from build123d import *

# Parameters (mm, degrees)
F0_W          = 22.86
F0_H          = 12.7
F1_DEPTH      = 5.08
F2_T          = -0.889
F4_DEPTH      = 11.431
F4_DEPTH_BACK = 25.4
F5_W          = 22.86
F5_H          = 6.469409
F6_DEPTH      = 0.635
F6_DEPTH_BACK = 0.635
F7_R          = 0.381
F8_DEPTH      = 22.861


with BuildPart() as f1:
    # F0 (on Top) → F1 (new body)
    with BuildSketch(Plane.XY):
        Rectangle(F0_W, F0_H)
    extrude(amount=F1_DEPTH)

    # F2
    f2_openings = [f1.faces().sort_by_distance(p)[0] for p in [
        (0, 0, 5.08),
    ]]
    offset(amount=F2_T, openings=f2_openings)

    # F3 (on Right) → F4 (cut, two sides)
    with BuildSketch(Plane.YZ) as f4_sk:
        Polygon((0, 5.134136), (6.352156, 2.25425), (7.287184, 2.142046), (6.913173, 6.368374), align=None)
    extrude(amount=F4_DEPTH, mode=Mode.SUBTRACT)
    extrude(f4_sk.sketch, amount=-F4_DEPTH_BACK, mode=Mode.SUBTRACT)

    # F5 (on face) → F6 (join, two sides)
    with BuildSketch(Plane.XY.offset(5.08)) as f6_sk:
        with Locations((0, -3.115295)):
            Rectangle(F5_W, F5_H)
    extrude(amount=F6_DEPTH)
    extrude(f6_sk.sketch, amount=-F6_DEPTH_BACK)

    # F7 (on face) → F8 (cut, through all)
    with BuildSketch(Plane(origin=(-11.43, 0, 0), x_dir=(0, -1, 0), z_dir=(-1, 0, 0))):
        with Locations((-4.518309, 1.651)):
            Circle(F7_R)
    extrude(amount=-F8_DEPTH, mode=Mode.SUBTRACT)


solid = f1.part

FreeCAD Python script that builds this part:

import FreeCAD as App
import Part
import Sketcher
Q = App.Units.Quantity


def faces_at(feature, points):
    """Names of the faces that lie closest to the given points."""
    faces = feature.Shape.Faces
    near = lambda p: min(range(len(faces)), key=lambda i: faces[i].distToShape(Part.Vertex(*p))[0])
    return sorted({f"Face{near(p) + 1}" for p in points})

doc = App.newDocument("Part")
body = doc.addObject("PartDesign::Body", "Body")

sketch1 = doc.addObject("Sketcher::SketchObject", "Sketch")
body.addObject(sketch1)
sketch1.AttachmentSupport = (doc.XY_Plane, [""])
sketch1.MapMode = "FlatFace"
sketch1.addGeometry([
    Part.LineSegment(App.Vector(-11, 6, 0), App.Vector(-11, -6, 0)),
    Part.LineSegment(App.Vector(-11, -6, 0), App.Vector(11, -6, 0)),
    Part.LineSegment(App.Vector(11, -6, 0), App.Vector(11, 6, 0)),
    Part.LineSegment(App.Vector(11, 6, 0), App.Vector(-11, 6, 0)),
], False)
sketch1.addConstraint([
    Sketcher.Constraint("Coincident", 0, 2, 1, 1),
    Sketcher.Constraint("Coincident", 1, 2, 2, 1),
    Sketcher.Constraint("Coincident", 2, 2, 3, 1),
    Sketcher.Constraint("Coincident", 3, 2, 0, 1),
    Sketcher.Constraint("Vertical", 0),
    Sketcher.Constraint("Horizontal", 1),
    Sketcher.Constraint("Vertical", 2),
    Sketcher.Constraint("Horizontal", 3),
    Sketcher.Constraint("Symmetric", 0, 2, 2, 2, -1, 1),
    Sketcher.Constraint("DistanceX", 1, 1, 1, 2, Q("0.9 in")),
    Sketcher.Constraint("DistanceY", 0, 2, 0, 1, Q("0.5 in")),
])
pad1 = doc.addObject("PartDesign::Pad", "Pad")
body.addObject(pad1)
pad1.Profile = sketch1
pad1.Length = Q("0.2 in")
doc.recompute()

thickness = doc.addObject("PartDesign::Thickness", "Thickness")
body.addObject(thickness)
thickness.Base = (pad1, faces_at(pad1, [(0, 0, 5.08)]))
thickness.Value = Q("0.035 in")
thickness.Reversed = True
thickness.Join = "Arc"

sketch2 = doc.addObject("Sketcher::SketchObject", "Sketch001")
body.addObject(sketch2)
sketch2.AttachmentSupport = (doc.YZ_Plane, [""])
sketch2.MapMode = "FlatFace"
sketch2.addGeometry([
    Part.LineSegment(App.Vector(0, 5.1, 0), App.Vector(6.4, 2.3, 0)),
    Part.LineSegment(App.Vector(6.4, 2.3, 0), App.Vector(7.3, 2.1, 0)),
    Part.LineSegment(App.Vector(7.3, 2.1, 0), App.Vector(6.9, 6.4, 0)),
    Part.LineSegment(App.Vector(6.9, 6.4, 0), App.Vector(0, 5.1, 0)),
], False)
sketch2.addConstraint([
    Sketcher.Constraint("Coincident", 0, 2, 1, 1),
    Sketcher.Constraint("Coincident", 1, 2, 2, 1),
    Sketcher.Constraint("Coincident", 2, 2, 3, 1),
    Sketcher.Constraint("Coincident", 3, 2, 0, 1),
    Sketcher.Constraint("PointOnObject", 3, 2, -2),
    Sketcher.Constraint("Distance", 0, Q("6.974498 mm")),
    Sketcher.Constraint("DistanceY", -1, 1, 0, 2, Q("2.25425 mm")),
    Sketcher.Constraint("DistanceX", 2, 2, 1, 2, Q("0.374011 mm")),
    Sketcher.Constraint("DistanceY", 1, 2, 2, 2, Q("4.226328 mm")),
    Sketcher.Constraint("DistanceY", 3, 2, 2, 2, Q("1.234238 mm")),
    Sketcher.Constraint("Distance", 1, Q("0.941736 mm")),
    Sketcher.Constraint("Distance", 3, Q("7.022486 mm")),
])
pocket1 = doc.addObject("PartDesign::Pocket", "Pocket")
body.addObject(pocket1)
pocket1.Profile = sketch2
pocket1.Type = "ThroughAll"
pocket1.Midplane = True

sketch3 = doc.addObject("Sketcher::SketchObject", "Sketch002")
body.addObject(sketch3)
sketch3.AttachmentSupport = (doc.XY_Plane, [""])
sketch3.MapMode = "FlatFace"
sketch3.AttachmentOffset = App.Placement(App.Vector(0, 0, 0.2 * 25.4), App.Rotation())
sketch3.addGeometry([
    Part.LineSegment(App.Vector(-11, 0, 0), App.Vector(-11, -6, 0)),
    Part.LineSegment(App.Vector(-11, -6, 0), App.Vector(11, -6, 0)),
    Part.LineSegment(App.Vector(11, -6, 0), App.Vector(11, 0, 0)),
    Part.LineSegment(App.Vector(11, 0, 0), App.Vector(-11, 0, 0)),
], False)
sketch3.addConstraint([
    Sketcher.Constraint("Coincident", 0, 2, 1, 1),
    Sketcher.Constraint("Coincident", 1, 2, 2, 1),
    Sketcher.Constraint("Coincident", 2, 2, 3, 1),
    Sketcher.Constraint("Coincident", 3, 2, 0, 1),
    Sketcher.Constraint("Vertical", 0),
    Sketcher.Constraint("Horizontal", 1),
    Sketcher.Constraint("Vertical", 2),
    Sketcher.Constraint("Horizontal", 3),
    Sketcher.Constraint("DistanceX", 1, 1, 1, 2, Q("0.9 in")),
    Sketcher.Constraint("DistanceX", 0, 2, -1, 1, Q("0.45 in")),
    Sketcher.Constraint("DistanceY", 0, 2, -1, 1, Q("0.25 in")),
    Sketcher.Constraint("DistanceY", 0, 2, 0, 1, Q("6.469409 mm")),
])
pad2 = doc.addObject("PartDesign::Pad", "Pad001")
body.addObject(pad2)
pad2.Profile = sketch3
pad2.Type = "TwoLengths"
pad2.Length = Q("0.025 in")
pad2.Length2 = Q("0.025 in")

sketch4 = doc.addObject("Sketcher::SketchObject", "Sketch003")
body.addObject(sketch4)
sketch4.AttachmentSupport = (doc.YZ_Plane, [""])
sketch4.MapMode = "FlatFace"
sketch4.AttachmentOffset = App.Placement(App.Vector(0, 0, -0.45 * 25.4), App.Rotation())
sketch4.addGeometry(Part.Circle(App.Vector(4.52, 1.65, 0), App.Vector(0, 0, 1), 0.38), False)
sketch4.addConstraint([
    Sketcher.Constraint("Diameter", 0, Q("0.03 in")),
    Sketcher.Constraint("DistanceY", -1, 1, 0, 3, Q("0.065 in")),
    Sketcher.Constraint("DistanceX", -1, 1, 0, 3, Q("4.518309 mm")),
])
pocket2 = doc.addObject("PartDesign::Pocket", "Pocket001")
body.addObject(pocket2)
pocket2.Profile = sketch4
pocket2.Type = "ThroughAll"
pocket2.Reversed = True

doc.recompute()
